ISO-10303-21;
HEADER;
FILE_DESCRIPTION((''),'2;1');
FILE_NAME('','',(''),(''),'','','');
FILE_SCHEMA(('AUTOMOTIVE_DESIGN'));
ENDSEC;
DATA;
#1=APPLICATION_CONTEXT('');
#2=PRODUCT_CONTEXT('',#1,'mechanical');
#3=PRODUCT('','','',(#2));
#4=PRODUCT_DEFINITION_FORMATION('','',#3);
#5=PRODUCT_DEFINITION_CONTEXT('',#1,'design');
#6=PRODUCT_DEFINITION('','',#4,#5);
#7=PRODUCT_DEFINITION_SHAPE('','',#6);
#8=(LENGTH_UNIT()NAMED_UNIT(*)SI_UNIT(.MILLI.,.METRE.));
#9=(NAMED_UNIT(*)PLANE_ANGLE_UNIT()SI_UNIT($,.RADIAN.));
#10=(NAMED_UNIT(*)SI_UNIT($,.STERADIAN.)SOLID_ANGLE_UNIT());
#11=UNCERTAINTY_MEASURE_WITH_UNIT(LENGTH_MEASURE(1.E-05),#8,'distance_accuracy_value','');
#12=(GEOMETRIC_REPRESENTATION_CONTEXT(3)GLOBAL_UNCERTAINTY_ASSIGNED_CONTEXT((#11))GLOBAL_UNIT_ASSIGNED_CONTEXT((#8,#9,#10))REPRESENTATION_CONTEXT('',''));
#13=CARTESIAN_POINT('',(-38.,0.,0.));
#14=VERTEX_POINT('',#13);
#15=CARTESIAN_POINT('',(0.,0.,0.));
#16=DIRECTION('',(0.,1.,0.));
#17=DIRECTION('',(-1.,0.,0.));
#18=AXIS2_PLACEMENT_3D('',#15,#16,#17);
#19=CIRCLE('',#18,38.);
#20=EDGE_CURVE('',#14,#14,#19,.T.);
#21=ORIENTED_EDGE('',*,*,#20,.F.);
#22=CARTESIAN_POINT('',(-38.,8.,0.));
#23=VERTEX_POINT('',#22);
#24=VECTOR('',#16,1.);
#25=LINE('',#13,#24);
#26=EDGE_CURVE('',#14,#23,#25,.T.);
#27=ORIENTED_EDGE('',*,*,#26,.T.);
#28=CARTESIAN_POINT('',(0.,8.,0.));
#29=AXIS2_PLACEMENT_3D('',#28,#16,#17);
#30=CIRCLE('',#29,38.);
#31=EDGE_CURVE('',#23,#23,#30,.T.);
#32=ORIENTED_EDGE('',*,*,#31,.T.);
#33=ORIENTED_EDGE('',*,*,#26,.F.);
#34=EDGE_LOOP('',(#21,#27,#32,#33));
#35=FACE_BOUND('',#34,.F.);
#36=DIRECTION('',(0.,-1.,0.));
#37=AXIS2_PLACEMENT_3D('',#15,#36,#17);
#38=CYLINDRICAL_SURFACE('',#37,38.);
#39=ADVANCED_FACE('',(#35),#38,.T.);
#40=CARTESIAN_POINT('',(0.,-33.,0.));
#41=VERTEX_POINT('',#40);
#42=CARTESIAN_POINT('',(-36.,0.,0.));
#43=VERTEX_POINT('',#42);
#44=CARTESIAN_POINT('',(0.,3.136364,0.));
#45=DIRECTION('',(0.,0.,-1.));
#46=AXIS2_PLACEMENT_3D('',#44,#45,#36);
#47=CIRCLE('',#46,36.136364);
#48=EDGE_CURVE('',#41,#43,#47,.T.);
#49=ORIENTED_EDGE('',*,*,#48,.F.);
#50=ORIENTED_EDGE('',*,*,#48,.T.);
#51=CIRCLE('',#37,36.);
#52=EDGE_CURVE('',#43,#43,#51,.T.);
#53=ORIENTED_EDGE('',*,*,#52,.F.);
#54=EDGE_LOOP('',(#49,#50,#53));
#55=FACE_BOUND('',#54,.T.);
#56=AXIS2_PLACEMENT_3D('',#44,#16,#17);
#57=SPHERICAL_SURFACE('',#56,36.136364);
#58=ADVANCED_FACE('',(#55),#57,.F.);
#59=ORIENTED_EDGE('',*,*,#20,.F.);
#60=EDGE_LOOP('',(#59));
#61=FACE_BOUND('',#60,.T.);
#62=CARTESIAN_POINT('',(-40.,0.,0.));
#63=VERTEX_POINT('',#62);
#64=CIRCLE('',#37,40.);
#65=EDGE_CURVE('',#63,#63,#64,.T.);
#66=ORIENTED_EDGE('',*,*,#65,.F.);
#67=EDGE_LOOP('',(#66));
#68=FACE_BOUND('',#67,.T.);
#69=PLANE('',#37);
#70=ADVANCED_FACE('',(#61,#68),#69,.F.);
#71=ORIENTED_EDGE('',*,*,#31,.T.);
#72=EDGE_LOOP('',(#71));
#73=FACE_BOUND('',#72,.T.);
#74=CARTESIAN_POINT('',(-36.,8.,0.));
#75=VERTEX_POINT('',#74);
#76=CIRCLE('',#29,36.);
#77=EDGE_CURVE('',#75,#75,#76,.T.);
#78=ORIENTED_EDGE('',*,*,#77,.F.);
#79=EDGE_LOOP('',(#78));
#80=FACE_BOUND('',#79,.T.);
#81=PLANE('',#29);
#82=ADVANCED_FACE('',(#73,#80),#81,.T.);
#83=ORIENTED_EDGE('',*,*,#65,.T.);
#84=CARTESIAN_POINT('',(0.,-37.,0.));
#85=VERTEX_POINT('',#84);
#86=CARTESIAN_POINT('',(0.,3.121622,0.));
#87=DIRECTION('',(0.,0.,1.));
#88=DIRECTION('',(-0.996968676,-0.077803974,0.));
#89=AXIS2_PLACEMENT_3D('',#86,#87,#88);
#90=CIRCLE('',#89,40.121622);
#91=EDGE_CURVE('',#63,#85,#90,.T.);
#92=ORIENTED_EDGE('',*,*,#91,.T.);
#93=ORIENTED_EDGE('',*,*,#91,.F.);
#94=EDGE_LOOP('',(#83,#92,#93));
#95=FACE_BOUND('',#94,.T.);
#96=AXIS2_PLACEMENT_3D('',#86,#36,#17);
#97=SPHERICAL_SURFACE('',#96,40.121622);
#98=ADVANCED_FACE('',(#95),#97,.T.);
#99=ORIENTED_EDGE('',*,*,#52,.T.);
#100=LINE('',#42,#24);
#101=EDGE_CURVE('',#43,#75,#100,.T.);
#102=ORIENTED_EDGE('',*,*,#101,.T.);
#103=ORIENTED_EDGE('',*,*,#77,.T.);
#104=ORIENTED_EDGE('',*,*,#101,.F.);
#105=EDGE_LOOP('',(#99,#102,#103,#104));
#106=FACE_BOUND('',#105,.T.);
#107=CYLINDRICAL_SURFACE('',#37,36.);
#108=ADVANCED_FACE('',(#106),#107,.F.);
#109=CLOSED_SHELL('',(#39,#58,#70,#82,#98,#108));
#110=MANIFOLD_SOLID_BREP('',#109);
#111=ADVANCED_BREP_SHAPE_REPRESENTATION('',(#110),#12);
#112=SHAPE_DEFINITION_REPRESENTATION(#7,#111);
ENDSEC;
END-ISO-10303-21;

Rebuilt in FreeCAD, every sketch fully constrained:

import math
import FreeCAD as App
import Part
import Sketcher
from FreeCAD import Vector

doc = App.newDocument("Part")
body = doc.addObject("PartDesign::Body", "Body")

sketch1 = doc.addObject("Sketcher::SketchObject", "Sketch")
body.addObject(sketch1)
sketch1.AttachmentSupport = (doc.XY_Plane, [""])
sketch1.MapMode = "FlatFace"
sketch1.addGeometry(Part.ArcOfCircle(Part.Circle(Vector(0, 3.136364, 0), Vector(0, 0, 1), 36.136364), math.radians(-175.020894), math.radians(-90)), False)
sketch1.addGeometry(Part.LineSegment(Vector(-36, 0, 0), Vector(-40, 0, 0)), False)
sketch1.addGeometry(Part.ArcOfCircle(Part.Circle(Vector(0, 3.121622, 0), Vector(0, 0, 1), 40.121622), math.radians(-175.537651), math.radians(-90)), False)
sketch1.addGeometry(Part.LineSegment(Vector(0, -37, 0), Vector(0, -33, 0)), False)
sketch1.addConstraint(Sketcher.Constraint("Coincident", 0, 1, 1, 1))
sketch1.addConstraint(Sketcher.Constraint("Coincident", 1, 2, 2, 1))
sketch1.addConstraint(Sketcher.Constraint("Coincident", 2, 2, 3, 1))
sketch1.addConstraint(Sketcher.Constraint("Coincident", 3, 2, 0, 2))
sketch1.addConstraint(Sketcher.Constraint("Horizontal", 1))
sketch1.addConstraint(Sketcher.Constraint("Vertical", 3))
sketch1.addConstraint(Sketcher.Constraint("PointOnObject", 0, 3, -2))
sketch1.addConstraint(Sketcher.Constraint("PointOnObject", 2, 3, -2))
sketch1.addConstraint(Sketcher.Constraint("PointOnObject", 0, 1, -1))
sketch1.addConstraint(Sketcher.Constraint("PointOnObject", 2, 2, -2))
sketch1.addConstraint(Sketcher.Constraint("Equal", 1, 3))
sketch1.addConstraint(Sketcher.Constraint("DistanceX", 1, 2, 1, 1, 4.0))
sketch1.addConstraint(Sketcher.Constraint("DistanceX", 0, 1, -1, 1, 36.0))
sketch1.addConstraint(Sketcher.Constraint("DistanceY", 2, 2, -1, 1, 37.0))
revolution = doc.addObject("PartDesign::Revolution", "Revolution")
body.addObject(revolution)
revolution.Profile = sketch1
revolution.ReferenceAxis = (sketch1, ["V_Axis"])
revolution.Angle = 360

sketch2 = doc.addObject("Sketcher::SketchObject", "Sketch001")
body.addObject(sketch2)
sketch2.AttachmentSupport = (doc.XZ_Plane, [""])
sketch2.MapMode = "FlatFace"
sketch2.addGeometry(Part.Circle(Vector(0, 0, 0), Vector(0, 0, 1), 38), False)
sketch2.addGeometry(Part.Circle(Vector(0, 0, 0), Vector(0, 0, 1), 36), False)
sketch2.addConstraint(Sketcher.Constraint("Coincident", 0, 3, -1, 1))
sketch2.addConstraint(Sketcher.Constraint("Coincident", 1, 3, -1, 1))
sketch2.addConstraint(Sketcher.Constraint("Diameter", 0, 76.0))
sketch2.addConstraint(Sketcher.Constraint("Diameter", 1, 72.0))
pad1 = doc.addObject("PartDesign::Pad", "Pad")
body.addObject(pad1)
pad1.Profile = sketch2
pad1.Length = 8
pad1.Reversed = True

doc.recompute()
